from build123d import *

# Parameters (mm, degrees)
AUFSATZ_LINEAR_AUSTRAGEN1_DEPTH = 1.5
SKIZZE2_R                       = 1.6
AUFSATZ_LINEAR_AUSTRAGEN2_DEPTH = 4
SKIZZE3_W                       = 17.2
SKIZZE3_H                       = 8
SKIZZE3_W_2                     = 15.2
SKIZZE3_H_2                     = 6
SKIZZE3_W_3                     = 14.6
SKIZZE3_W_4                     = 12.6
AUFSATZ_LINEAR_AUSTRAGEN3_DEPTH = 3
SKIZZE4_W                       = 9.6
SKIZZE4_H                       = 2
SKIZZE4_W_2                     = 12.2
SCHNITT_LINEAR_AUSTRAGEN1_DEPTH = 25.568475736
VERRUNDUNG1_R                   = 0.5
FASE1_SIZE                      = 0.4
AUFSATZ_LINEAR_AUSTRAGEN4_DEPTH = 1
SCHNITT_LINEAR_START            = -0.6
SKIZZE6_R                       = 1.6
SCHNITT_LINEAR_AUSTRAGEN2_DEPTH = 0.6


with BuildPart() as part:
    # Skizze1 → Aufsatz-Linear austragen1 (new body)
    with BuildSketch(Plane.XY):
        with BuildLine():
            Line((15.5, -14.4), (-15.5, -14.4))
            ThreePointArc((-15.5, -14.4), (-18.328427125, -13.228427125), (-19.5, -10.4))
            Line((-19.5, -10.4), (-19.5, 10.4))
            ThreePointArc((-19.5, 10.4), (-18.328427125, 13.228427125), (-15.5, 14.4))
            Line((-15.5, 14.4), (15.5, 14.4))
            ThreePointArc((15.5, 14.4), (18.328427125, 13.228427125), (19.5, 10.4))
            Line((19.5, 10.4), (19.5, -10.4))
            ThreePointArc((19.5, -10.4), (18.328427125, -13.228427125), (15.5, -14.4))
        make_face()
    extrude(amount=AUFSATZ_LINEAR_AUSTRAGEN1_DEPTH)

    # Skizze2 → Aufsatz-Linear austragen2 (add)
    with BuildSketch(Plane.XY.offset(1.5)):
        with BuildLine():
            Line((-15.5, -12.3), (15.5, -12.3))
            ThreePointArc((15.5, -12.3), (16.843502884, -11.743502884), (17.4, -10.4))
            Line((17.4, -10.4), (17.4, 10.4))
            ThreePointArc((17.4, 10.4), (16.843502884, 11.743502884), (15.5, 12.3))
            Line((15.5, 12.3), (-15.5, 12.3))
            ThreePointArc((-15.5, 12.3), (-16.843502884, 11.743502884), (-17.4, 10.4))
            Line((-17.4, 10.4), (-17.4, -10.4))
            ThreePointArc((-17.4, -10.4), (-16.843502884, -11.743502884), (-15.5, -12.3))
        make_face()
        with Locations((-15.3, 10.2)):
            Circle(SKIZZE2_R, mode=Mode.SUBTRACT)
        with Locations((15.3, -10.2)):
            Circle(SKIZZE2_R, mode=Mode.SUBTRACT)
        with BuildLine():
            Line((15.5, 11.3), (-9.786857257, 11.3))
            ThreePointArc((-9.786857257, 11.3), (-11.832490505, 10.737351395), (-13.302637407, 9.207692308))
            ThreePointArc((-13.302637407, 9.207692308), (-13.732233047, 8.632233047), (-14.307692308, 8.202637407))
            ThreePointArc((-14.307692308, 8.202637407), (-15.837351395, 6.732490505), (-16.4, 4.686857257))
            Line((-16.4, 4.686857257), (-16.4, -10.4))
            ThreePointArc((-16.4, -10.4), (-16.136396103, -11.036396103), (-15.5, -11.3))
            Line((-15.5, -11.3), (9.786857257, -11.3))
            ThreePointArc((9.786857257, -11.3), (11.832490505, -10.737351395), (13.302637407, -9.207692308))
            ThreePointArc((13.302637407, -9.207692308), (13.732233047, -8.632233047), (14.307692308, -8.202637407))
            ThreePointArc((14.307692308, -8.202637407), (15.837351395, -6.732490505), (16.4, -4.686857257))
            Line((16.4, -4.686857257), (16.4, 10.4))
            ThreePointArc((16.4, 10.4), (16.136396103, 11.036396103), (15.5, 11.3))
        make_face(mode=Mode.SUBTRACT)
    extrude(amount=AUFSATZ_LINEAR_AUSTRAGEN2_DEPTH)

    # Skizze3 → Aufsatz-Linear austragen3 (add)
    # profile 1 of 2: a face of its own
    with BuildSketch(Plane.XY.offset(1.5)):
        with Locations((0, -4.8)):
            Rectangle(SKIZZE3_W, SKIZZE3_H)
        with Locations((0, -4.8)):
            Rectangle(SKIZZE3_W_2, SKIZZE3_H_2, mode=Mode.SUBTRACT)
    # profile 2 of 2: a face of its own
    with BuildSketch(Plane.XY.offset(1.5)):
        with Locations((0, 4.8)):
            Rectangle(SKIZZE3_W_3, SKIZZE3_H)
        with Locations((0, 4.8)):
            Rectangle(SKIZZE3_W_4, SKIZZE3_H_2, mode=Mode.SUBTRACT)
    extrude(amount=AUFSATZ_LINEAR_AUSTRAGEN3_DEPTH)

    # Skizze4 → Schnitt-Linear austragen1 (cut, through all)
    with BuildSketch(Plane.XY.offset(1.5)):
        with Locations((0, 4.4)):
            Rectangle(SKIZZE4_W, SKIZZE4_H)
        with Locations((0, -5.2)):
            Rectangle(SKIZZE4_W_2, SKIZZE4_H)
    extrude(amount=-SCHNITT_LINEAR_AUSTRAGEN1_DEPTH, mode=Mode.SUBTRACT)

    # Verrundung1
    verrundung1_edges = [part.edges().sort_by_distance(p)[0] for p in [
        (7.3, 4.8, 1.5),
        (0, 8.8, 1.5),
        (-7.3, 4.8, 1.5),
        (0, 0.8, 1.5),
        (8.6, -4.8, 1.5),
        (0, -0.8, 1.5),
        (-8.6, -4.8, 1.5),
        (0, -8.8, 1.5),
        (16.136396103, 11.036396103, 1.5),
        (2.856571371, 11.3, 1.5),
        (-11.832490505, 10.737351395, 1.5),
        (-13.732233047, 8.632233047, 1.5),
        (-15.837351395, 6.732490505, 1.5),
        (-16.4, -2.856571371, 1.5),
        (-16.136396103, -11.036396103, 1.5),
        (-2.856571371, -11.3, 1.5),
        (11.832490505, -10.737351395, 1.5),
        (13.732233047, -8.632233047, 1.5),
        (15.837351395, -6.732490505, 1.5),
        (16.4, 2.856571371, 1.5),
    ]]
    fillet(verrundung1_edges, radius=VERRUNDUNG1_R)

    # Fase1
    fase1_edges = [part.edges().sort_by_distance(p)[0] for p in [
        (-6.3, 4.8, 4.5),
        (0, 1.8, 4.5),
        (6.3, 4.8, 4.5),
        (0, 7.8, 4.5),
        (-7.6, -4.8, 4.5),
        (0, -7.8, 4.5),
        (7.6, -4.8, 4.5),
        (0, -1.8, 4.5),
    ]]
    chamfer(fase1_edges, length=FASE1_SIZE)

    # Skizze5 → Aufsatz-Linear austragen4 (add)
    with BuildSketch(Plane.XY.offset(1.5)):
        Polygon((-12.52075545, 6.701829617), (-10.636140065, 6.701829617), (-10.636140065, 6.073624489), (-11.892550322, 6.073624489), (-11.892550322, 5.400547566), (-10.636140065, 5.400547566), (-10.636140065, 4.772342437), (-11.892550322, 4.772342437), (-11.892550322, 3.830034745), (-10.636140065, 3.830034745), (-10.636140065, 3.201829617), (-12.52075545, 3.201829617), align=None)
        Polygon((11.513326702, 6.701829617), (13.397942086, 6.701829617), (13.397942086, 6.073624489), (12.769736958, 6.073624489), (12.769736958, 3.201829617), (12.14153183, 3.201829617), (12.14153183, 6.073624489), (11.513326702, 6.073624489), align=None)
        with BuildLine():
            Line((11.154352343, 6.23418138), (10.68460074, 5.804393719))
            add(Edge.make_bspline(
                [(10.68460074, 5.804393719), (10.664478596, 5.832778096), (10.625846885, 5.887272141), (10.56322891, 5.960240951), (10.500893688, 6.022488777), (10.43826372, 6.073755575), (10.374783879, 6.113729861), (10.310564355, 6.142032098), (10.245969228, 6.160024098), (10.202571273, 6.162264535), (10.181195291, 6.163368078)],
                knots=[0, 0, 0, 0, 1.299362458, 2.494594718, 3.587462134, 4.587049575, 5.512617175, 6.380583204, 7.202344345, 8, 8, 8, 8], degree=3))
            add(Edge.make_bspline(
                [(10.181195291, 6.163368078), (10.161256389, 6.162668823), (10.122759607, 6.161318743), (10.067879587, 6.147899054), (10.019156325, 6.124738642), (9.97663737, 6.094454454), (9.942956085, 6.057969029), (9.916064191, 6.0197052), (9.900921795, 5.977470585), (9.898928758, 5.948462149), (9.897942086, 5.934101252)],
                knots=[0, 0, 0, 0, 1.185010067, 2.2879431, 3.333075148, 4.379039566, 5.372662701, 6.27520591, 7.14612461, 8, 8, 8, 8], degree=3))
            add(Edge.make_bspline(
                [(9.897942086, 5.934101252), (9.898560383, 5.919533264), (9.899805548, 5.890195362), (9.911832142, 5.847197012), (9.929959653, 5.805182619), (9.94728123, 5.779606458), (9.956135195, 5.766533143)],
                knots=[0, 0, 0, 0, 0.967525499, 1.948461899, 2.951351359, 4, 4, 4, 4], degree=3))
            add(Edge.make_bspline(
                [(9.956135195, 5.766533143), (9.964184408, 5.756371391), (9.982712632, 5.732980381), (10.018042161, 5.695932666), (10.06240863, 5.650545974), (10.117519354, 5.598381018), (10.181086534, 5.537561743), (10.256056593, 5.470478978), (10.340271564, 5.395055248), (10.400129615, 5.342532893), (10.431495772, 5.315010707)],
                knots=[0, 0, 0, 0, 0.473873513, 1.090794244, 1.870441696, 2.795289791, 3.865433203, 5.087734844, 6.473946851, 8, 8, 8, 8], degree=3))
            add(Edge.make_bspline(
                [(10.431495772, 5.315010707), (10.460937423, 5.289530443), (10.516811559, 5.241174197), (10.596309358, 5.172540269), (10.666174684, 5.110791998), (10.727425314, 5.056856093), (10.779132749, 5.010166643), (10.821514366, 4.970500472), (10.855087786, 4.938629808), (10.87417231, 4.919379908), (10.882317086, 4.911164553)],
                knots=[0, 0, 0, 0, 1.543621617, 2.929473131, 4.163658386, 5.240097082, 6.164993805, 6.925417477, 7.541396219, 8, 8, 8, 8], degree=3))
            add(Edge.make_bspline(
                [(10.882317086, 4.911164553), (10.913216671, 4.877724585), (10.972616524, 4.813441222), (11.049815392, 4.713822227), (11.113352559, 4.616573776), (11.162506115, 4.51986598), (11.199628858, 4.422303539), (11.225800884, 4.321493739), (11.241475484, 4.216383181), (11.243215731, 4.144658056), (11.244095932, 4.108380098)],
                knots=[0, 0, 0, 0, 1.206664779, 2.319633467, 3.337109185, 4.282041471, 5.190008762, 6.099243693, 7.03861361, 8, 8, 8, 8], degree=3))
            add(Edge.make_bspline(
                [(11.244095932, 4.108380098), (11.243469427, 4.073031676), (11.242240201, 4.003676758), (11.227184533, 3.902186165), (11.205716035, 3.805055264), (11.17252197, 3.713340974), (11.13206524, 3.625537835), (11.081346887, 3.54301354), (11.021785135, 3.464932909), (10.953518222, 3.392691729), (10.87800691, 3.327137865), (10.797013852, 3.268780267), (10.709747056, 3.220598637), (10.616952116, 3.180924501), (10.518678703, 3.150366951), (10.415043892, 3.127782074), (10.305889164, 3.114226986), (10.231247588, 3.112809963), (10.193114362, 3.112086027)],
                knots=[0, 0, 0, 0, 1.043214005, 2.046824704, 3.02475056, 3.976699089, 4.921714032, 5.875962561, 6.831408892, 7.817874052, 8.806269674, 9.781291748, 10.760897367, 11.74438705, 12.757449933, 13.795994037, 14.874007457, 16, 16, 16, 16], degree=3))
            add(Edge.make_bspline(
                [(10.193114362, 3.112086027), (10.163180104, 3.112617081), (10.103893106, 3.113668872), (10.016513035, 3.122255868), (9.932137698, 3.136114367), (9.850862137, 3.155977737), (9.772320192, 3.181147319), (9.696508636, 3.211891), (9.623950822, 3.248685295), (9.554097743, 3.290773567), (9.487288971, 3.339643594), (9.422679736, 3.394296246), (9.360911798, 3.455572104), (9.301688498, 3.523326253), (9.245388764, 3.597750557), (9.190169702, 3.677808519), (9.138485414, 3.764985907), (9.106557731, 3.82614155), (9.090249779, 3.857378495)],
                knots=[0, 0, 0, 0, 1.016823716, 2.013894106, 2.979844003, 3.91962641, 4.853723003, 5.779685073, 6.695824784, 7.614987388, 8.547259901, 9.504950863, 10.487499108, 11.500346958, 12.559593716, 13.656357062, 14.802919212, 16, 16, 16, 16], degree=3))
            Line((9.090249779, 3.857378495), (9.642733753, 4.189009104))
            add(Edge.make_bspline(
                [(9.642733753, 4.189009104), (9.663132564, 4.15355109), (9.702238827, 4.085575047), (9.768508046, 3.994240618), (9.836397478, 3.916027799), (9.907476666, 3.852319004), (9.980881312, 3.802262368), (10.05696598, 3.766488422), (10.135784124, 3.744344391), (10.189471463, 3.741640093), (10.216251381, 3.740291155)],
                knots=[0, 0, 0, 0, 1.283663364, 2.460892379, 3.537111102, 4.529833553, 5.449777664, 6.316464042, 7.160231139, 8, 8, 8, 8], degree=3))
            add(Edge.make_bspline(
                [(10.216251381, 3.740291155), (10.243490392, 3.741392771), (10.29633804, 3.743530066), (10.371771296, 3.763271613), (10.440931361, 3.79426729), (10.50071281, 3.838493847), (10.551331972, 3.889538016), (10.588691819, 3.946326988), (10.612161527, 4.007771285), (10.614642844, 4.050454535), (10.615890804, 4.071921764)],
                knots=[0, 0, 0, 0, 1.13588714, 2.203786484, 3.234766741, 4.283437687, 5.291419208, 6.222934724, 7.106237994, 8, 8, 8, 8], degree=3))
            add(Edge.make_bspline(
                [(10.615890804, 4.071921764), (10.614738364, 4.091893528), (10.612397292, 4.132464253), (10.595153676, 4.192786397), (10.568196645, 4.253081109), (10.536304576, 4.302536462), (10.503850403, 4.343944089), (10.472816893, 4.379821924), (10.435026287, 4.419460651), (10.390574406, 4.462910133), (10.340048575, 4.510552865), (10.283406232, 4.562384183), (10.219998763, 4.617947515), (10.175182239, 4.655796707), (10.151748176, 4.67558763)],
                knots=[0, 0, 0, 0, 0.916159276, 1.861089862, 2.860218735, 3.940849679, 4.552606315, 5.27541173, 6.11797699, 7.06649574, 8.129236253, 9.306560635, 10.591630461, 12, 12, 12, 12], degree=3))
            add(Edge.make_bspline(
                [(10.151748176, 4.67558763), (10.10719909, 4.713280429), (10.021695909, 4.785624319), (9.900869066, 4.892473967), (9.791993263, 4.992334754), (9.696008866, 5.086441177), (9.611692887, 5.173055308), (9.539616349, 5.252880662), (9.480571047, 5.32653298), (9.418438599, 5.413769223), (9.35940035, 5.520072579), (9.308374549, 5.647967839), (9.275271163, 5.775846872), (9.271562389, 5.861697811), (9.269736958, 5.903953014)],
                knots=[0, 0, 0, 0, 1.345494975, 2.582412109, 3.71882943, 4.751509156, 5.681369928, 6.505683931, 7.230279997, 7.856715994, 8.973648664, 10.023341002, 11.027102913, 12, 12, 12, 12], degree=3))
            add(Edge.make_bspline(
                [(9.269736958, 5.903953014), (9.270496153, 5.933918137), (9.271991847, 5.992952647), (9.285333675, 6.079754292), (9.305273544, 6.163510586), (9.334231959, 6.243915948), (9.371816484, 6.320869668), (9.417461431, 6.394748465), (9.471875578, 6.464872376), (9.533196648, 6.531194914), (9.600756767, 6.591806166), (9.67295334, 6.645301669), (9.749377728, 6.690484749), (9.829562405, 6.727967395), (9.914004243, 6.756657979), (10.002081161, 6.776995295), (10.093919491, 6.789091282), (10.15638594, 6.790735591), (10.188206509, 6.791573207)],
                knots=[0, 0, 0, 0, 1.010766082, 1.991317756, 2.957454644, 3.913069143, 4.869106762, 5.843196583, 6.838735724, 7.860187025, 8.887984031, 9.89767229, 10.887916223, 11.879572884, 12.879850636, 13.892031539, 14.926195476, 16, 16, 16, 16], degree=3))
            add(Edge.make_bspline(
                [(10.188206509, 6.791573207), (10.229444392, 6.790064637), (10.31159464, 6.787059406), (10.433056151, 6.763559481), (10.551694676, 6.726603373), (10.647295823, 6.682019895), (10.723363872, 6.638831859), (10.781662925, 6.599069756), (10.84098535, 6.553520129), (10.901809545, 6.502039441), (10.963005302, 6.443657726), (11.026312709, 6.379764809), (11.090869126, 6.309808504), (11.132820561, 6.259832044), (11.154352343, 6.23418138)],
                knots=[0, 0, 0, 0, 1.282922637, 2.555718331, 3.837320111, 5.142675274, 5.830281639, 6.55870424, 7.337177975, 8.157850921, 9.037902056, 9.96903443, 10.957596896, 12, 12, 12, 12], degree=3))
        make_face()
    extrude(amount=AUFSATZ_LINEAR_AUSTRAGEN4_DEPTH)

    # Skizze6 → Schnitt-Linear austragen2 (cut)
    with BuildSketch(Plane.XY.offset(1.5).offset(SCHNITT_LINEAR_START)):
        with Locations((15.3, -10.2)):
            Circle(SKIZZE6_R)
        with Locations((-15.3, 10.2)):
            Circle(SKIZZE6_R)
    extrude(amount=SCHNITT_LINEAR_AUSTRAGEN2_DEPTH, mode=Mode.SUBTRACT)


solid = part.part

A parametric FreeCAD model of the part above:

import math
import FreeCAD as App
import Part
import Sketcher


def edges_at(feature, points):
    """Names of the edges that pass closest to the given points."""
    edges = feature.Shape.Edges
    near = lambda p: min(range(len(edges)), key=lambda i: edges[i].distToShape(Part.Vertex(*p))[0])
    return sorted({f"Edge{near(p) + 1}" for p in points})


def add_polygon(sketch, points):
    """Adds a closed chain of lines whose ends are joined by coincident constraints."""
    first, n = sketch.GeometryCount, len(points)
    for a, b in zip(points, points[1:] + points[:1]):
        sketch.addGeometry(Part.LineSegment(App.Vector(*a, 0), App.Vector(*b, 0)), False)
    for i in range(n):
        sketch.addConstraint(Sketcher.Constraint("Coincident", first + i, 2, first + (i + 1) % n, 1))

doc = App.newDocument("Part")
body = doc.addObject("PartDesign::Body", "Body")

# Sketch on XY plane
sketch1 = body.newObject("Sketcher::SketchObject", "Sketch")
sketch1.AttachmentSupport = (doc.getObject("XY_Plane"), [""])
sketch1.MapMode = "FlatFace"
sketch1.addGeometry([
    Part.LineSegment(App.Vector(-15.5, -14.4, 0), App.Vector(15.5, -14.4, 0)),  # 0
    Part.ArcOfCircle(Part.Circle(App.Vector(15.5, -10.4, 0), App.Vector(0, 0, 1), 4), math.radians(-90), math.radians(0)),  # 1
    Part.LineSegment(App.Vector(19.5, -10.4, 0), App.Vector(19.5, 10.4, 0)),  # 2
    Part.ArcOfCircle(Part.Circle(App.Vector(15.5, 10.4, 0), App.Vector(0, 0, 1), 4), math.radians(0), math.radians(90)),  # 3
    Part.LineSegment(App.Vector(15.5, 14.4, 0), App.Vector(-15.5, 14.4, 0)),  # 4
    Part.ArcOfCircle(Part.Circle(App.Vector(-15.5, 10.4, 0), App.Vector(0, 0, 1), 4), math.radians(90), math.radians(180)),  # 5
    Part.LineSegment(App.Vector(-19.5, 10.4, 0), App.Vector(-19.5, -10.4, 0)),  # 6
    Part.ArcOfCircle(Part.Circle(App.Vector(-15.5, -10.4, 0), App.Vector(0, 0, 1), 4), math.radians(180), math.radians(270)),  # 7
], False)
sketch1.addConstraint([
    Sketcher.Constraint("Tangent", 0, 2, 1, 1),
    Sketcher.Constraint("Tangent", 1, 2, 2, 1),
    Sketcher.Constraint("Tangent", 2, 2, 3, 1),
    Sketcher.Constraint("Tangent", 3, 2, 4, 1),
    Sketcher.Constraint("Tangent", 4, 2, 5, 1),
    Sketcher.Constraint("Tangent", 5, 2, 6, 1),
    Sketcher.Constraint("Tangent", 6, 2, 7, 1),
    Sketcher.Constraint("Tangent", 7, 2, 0, 1),
    Sketcher.Constraint("Horizontal", 0),
    Sketcher.Constraint("Vertical", 2),
    Sketcher.Constraint("Horizontal", 4),
    Sketcher.Constraint("Vertical", 6),
    Sketcher.Constraint("Equal", 1, 3),
    Sketcher.Constraint("Equal", 3, 5),
    Sketcher.Constraint("Equal", 5, 7),
    Sketcher.Constraint("Symmetric", 1, 3, 5, 3, -1, 1),
    Sketcher.Constraint("Radius", 1, 4.0),
    Sketcher.Constraint("DistanceX", 0, 1, 0, 2, 31.0),
    Sketcher.Constraint("DistanceY", 2, 1, 2, 2, 20.8),
])
pad1 = body.newObject("PartDesign::Pad", "Pad")
pad1.Profile = sketch1
pad1.Length = 1.5

# Sketch on XY plane
sketch2 = body.newObject("Sketcher::SketchObject", "Sketch001")
sketch2.AttachmentSupport = (doc.getObject("XY_Plane"), [""])
sketch2.MapMode = "FlatFace"
sketch2.AttachmentOffset = App.Placement(App.Vector(0, 0, 1.5), App.Rotation())
sketch2.addGeometry([
    Part.LineSegment(App.Vector(-15.5, -12.3, 0), App.Vector(15.5, -12.3, 0)),  # 0
    Part.ArcOfCircle(Part.Circle(App.Vector(15.5, -10.4, 0), App.Vector(0, 0, 1), 1.9), math.radians(-90), math.radians(0)),  # 1
    Part.LineSegment(App.Vector(17.4, -10.4, 0), App.Vector(17.4, 10.4, 0)),  # 2
    Part.ArcOfCircle(Part.Circle(App.Vector(15.5, 10.4, 0), App.Vector(0, 0, 1), 1.9), math.radians(0), math.radians(90)),  # 3
    Part.LineSegment(App.Vector(15.5, 12.3, 0), App.Vector(-15.5, 12.3, 0)),  # 4
    Part.ArcOfCircle(Part.Circle(App.Vector(-15.5, 10.4, 0), App.Vector(0, 0, 1), 1.9), math.radians(90), math.radians(180)),  # 5
    Part.LineSegment(App.Vector(-17.4, 10.4, 0), App.Vector(-17.4, -10.4, 0)),  # 6
    Part.ArcOfCircle(Part.Circle(App.Vector(-15.5, -10.4, 0), App.Vector(0, 0, 1), 1.9), math.radians(-180), math.radians(-90)),  # 7
    Part.Circle(App.Vector(15.3, -10.2, 0), App.Vector(0, 0, 1), 1.6),  # 8
    Part.Circle(App.Vector(-15.3, 10.2, 0), App.Vector(0, 0, 1), 1.6),  # 9
    Part.LineSegment(App.Vector(-9.8, 11.3, 0), App.Vector(15.5, 11.3, 0)),  # 10
    Part.ArcOfCircle(Part.Circle(App.Vector(15.5, 10.4, 0), App.Vector(0, 0, 1), 0.9), math.radians(0), math.radians(90)),  # 11
    Part.LineSegment(App.Vector(16.4, 10.4, 0), App.Vector(16.4, -4.7, 0)),  # 12
    Part.ArcOfCircle(Part.Circle(App.Vector(12.4, -4.7, 0), App.Vector(0, 0, 1), 4), math.radians(-62), math.radians(0)),  # 13
    Part.ArcOfCircle(Part.Circle(App.Vector(15.5, -10.4, 0), App.Vector(0, 0, 1), 2.5), math.radians(118), math.radians(152)),  # 14
    Part.ArcOfCircle(Part.Circle(App.Vector(9.8, -7.3, 0), App.Vector(0, 0, 1), 4), math.radians(-90), math.radians(-28)),  # 15
    Part.LineSegment(App.Vector(9.8, -11.3, 0), App.Vector(-15.5, -11.3, 0)),  # 16
    Part.ArcOfCircle(Part.Circle(App.Vector(-15.5, -10.4, 0), App.Vector(0, 0, 1), 0.9), math.radians(180), math.radians(270)),  # 17
    Part.LineSegment(App.Vector(-16.4, -10.4, 0), App.Vector(-16.4, 4.7, 0)),  # 18
    Part.ArcOfCircle(Part.Circle(App.Vector(-12.4, 4.7, 0), App.Vector(0, 0, 1), 4), math.radians(118), math.radians(180)),  # 19
    Part.ArcOfCircle(Part.Circle(App.Vector(-15.5, 10.4, 0), App.Vector(0, 0, 1), 2.5), math.radians(-62), math.radians(-28)),  # 20
    Part.ArcOfCircle(Part.Circle(App.Vector(-9.8, 7.3, 0), App.Vector(0, 0, 1), 4), math.radians(90), math.radians(152)),  # 21
], False)
sketch2.addConstraint([
    Sketcher.Constraint("Tangent", 0, 2, 1, 1),
    Sketcher.Constraint("Tangent", 1, 2, 2, 1),
    Sketcher.Constraint("Tangent", 2, 2, 3, 1),
    Sketcher.Constraint("Tangent", 3, 2, 4, 1),
    Sketcher.Constraint("Tangent", 4, 2, 5, 1),
    Sketcher.Constraint("Tangent", 5, 2, 6, 1),
    Sketcher.Constraint("Tangent", 6, 2, 7, 1),
    Sketcher.Constraint("Tangent", 7, 2, 0, 1),
    Sketcher.Constraint("Tangent", 10, 2, 11, 2),
    Sketcher.Constraint("Tangent", 11, 1, 12, 1),
    Sketcher.Constraint("Tangent", 12, 2, 13, 2),
    Sketcher.Constraint("Tangent", 13, 1, 14, 1),
    Sketcher.Constraint("Tangent", 14, 2, 15, 2),
    Sketcher.Constraint("Tangent", 15, 1, 16, 1),
    Sketcher.Constraint("Tangent", 16, 2, 17, 2),
    Sketcher.Constraint("Tangent", 17, 1, 18, 1),
    Sketcher.Constraint("Tangent", 18, 2, 19, 2),
    Sketcher.Constraint("Tangent", 19, 1, 20, 1),
    Sketcher.Constraint("Tangent", 20, 2, 21, 2),
    Sketcher.Constraint("Tangent", 21, 1, 10, 1),
    Sketcher.Constraint("Horizontal", 0),
    Sketcher.Constraint("Vertical", 2),
    Sketcher.Constraint("Horizontal", 4),
    Sketcher.Constraint("Vertical", 6),
    Sketcher.Constraint("Horizontal", 10),
    Sketcher.Constraint("Vertical", 12),
    Sketcher.Constraint("Horizontal", 16),
    Sketcher.Constraint("Vertical", 18),
    Sketcher.Constraint("Coincident", 11, 3, 3, 3),
    Sketcher.Constraint("Coincident", 14, 3, 1, 3),
    Sketcher.Constraint("Coincident", 17, 3, 7, 3),
    Sketcher.Constraint("Coincident", 20, 3, 5, 3),
    Sketcher.Constraint("Equal", 1, 3),
    Sketcher.Constraint("Equal", 3, 5),
    Sketcher.Constraint("Equal", 5, 7),
    Sketcher.Constraint("Equal", 8, 9),
    Sketcher.Constraint("Equal", 13, 15),
    Sketcher.Constraint("Equal", 11, 17),
    Sketcher.Constraint("Equal", 15, 19),
    Sketcher.Constraint("Equal", 14, 20),
    Sketcher.Constraint("Equal", 19, 21),
    Sketcher.Constraint("Symmetric", 1, 3, 5, 3, -1, 1),
    Sketcher.Constraint("Symmetric", 8, 3, 9, 3, -1, 1),
    Sketcher.Constraint("Radius", 13, 4.0),
    Sketcher.Constraint("Diameter", 8, 3.2),
    Sketcher.Constraint("Radius", 1, 1.9),
    Sketcher.Constraint("Radius", 11, 0.9),
    Sketcher.Constraint("Radius", 14, 2.5),
    Sketcher.Constraint("DistanceX", 0, 1, 0, 2, 31.0),
    Sketcher.Constraint("DistanceY", 2, 1, 2, 2, 20.8),
    Sketcher.Constraint("DistanceX", -1, 1, 8, 3, 15.3),
    Sketcher.Constraint("DistanceY", 8, 3, -1, 1, 10.2),
])
pad2 = body.newObject("PartDesign::Pad", "Pad001")
pad2.Profile = sketch2
pad2.Length = 4

# Sketch on XY plane
sketch3 = body.newObject("Sketcher::SketchObject", "Sketch002")
sketch3.AttachmentSupport = (doc.getObject("XY_Plane"), [""])
sketch3.MapMode = "FlatFace"
sketch3.AttachmentOffset = App.Placement(App.Vector(0, 0, 1.5), App.Rotation())
add_polygon(sketch3, [(-9, -1), (-9, -9), (9, -9), (9, -1)])  # lines 0-3
add_polygon(sketch3, [(8, -8), (-8, -8), (-8, -2), (8, -2)])  # lines 4-7
add_polygon(sketch3, [(-7, 9), (-7, 1), (7, 1), (7, 9)])  # lines 8-11
add_polygon(sketch3, [(6, 2), (-6, 2), (-6, 8), (6, 8)])  # lines 12-15
sketch3.addConstraint([
    Sketcher.Constraint("Vertical", 0),
    Sketcher.Constraint("Horizontal", 1),
    Sketcher.Constraint("Vertical", 2),
    Sketcher.Constraint("Horizontal", 3),
    Sketcher.Constraint("Horizontal", 4),
    Sketcher.Constraint("Vertical", 5),
    Sketcher.Constraint("Horizontal", 6),
    Sketcher.Constraint("Vertical", 7),
    Sketcher.Constraint("Vertical", 8),
    Sketcher.Constraint("Horizontal", 9),
    Sketcher.Constraint("Vertical", 10),
    Sketcher.Constraint("Horizontal", 11),
    Sketcher.Constraint("Horizontal", 12),
    Sketcher.Constraint("Vertical", 13),
    Sketcher.Constraint("Horizontal", 14),
    Sketcher.Constraint("Vertical", 15),
    Sketcher.Constraint("Equal", 2, 8),
    Sketcher.Constraint("Equal", 7, 13),
    Sketcher.Constraint("DistanceY", 0, 2, 0, 1, 8.0),
    Sketcher.Constraint("DistanceY", 5, 1, 5, 2, 6.0),
    Sketcher.Constraint("DistanceX", 1, 1, 1, 2, 17.2),
    Sketcher.Constraint("DistanceX", 4, 2, 4, 1, 15.2),
    Sketcher.Constraint("DistanceX", 9, 1, 9, 2, 14.6),
    Sketcher.Constraint("DistanceX", 12, 2, 12, 1, 12.6),
    Sketcher.Constraint("DistanceX", 0, 2, 4, 2, 1.0),
    Sketcher.Constraint("DistanceY", 0, 2, 4, 2, 1.0),
    Sketcher.Constraint("DistanceX", 8, 2, 12, 2, 1.0),
    Sketcher.Constraint("DistanceY", 8, 2, 12, 2, 1.0),
    Sketcher.Constraint("DistanceX", 0, 2, -1, 1, 8.6),
    Sketcher.Constraint("DistanceY", 0, 2, -1, 1, 8.8),
    Sketcher.Constraint("DistanceX", 8, 2, -1, 1, 7.3),
    Sketcher.Constraint("DistanceY", -1, 1, 8, 2, 0.8),
])
pad3 = body.newObject("PartDesign::Pad", "Pad002")
pad3.Profile = sketch3
pad3.Length = 3

# Sketch on XY plane
sketch4 = body.newObject("Sketcher::SketchObject", "Sketch003")
sketch4.AttachmentSupport = (doc.getObject("XY_Plane"), [""])
sketch4.MapMode = "FlatFace"
sketch4.AttachmentOffset = App.Placement(App.Vector(0, 0, 1.5), App.Rotation())
add_polygon(sketch4, [(-4.8, 5.4), (-4.8, 3.4), (4.8, 3.4), (4.8, 5.4)])  # lines 0-3
add_polygon(sketch4, [(-6.1, -4.2), (-6.1, -6.2), (6.1, -6.2), (6.1, -4.2)])  # lines 4-7
sketch4.addConstraint([
    Sketcher.Constraint("Vertical", 0),
    Sketcher.Constraint("Horizontal", 1),
    Sketcher.Constraint("Vertical", 2),
    Sketcher.Constraint("Horizontal", 3),
    Sketcher.Constraint("Vertical", 4),
    Sketcher.Constraint("Horizontal", 5),
    Sketcher.Constraint("Vertical", 6),
    Sketcher.Constraint("Horizontal", 7),
    Sketcher.Constraint("Equal", 2, 4),
    Sketcher.Constraint("DistanceY", 0, 2, 0, 1, 2.0),
    Sketcher.Constraint("DistanceX", 1, 1, 1, 2, 9.6),
    Sketcher.Constraint("DistanceX", 5, 1, 5, 2, 12.2),
    Sketcher.Constraint("DistanceX", 0, 2, -1, 1, 4.8),
    Sketcher.Constraint("DistanceY", -1, 1, 0, 2, 3.4),
    Sketcher.Constraint("DistanceX", 4, 2, -1, 1, 6.1),
    Sketcher.Constraint("DistanceY", 4, 2, -1, 1, 6.2),
])
pocket1 = body.newObject("PartDesign::Pocket", "Pocket")
pocket1.Profile = sketch4
pocket1.Type = "ThroughAll"
doc.recompute()

fillet = body.newObject("PartDesign::Fillet", "Fillet")
fillet.Base = (pocket1, edges_at(pocket1, [
    (7.3, 4.8, 1.5),
    (0, 8.8, 1.5),
    (-7.3, 4.8, 1.5),
    (0, 0.8, 1.5),
    (8.6, -4.8, 1.5),
    (0, -0.8, 1.5),
    (-8.6, -4.8, 1.5),
    (0, -8.8, 1.5),
    (16.136, 11.036, 1.5),
    (2.857, 11.3, 1.5),
    (-11.832, 10.737, 1.5),
    (-13.732, 8.632, 1.5),
    (-15.837, 6.732, 1.5),
    (-16.4, -2.857, 1.5),
    (-16.136, -11.036, 1.5),
    (-2.857, -11.3, 1.5),
    (11.832, -10.737, 1.5),
    (13.732, -8.632, 1.5),
    (15.837, -6.732, 1.5),
    (16.4, 2.857, 1.5),
]))
fillet.Radius = 0.5
doc.recompute()

chamfer = body.newObject("PartDesign::Chamfer", "Chamfer")
chamfer.Base = (fillet, edges_at(fillet, [
    (-6.3, 4.8, 4.5),
    (0, 1.8, 4.5),
    (6.3, 4.8, 4.5),
    (0, 7.8, 4.5),
    (-7.6, -4.8, 4.5),
    (0, -7.8, 4.5),
    (7.6, -4.8, 4.5),
    (0, -1.8, 4.5),
]))
chamfer.Size = 0.4

# Sketch on XY plane
sketch5 = body.newObject("Sketcher::SketchObject", "Sketch004")
sketch5.AttachmentSupport = (doc.getObject("XY_Plane"), [""])
sketch5.MapMode = "FlatFace"
sketch5.AttachmentOffset = App.Placement(App.Vector(0, 0, 1.5), App.Rotation())
add_polygon(sketch5, [(-10.63614, 6.70183), (-12.520755, 6.70183), (-12.520755, 3.20183), (-10.63614, 3.20183), (-10.63614, 3.830035), (-11.89255, 3.830035), (-11.89255, 4.772342), (-10.63614, 4.772342), (-10.63614, 5.400548), (-11.89255, 5.400548), (-11.89255, 6.073624), (-10.63614, 6.073624)])  # lines 0-11
add_polygon(sketch5, [(13.397942, 6.70183), (11.513327, 6.70183), (11.513327, 6.073624), (12.141532, 6.073624), (12.141532, 3.20183), (12.769737, 3.20183), (12.769737, 6.073624), (13.397942, 6.073624)])  # lines 12-19
sketch5.addGeometry(Part.LineSegment(App.Vector(10.684601, 5.804394, 0), App.Vector(11.154352, 6.234181, 0)), False)  # 20
sketch5.addGeometry(Part.BSplineCurve([App.Vector(10.188207, 6.791573, 0), App.Vector(10.229444, 6.790065, 0), App.Vector(10.311595, 6.787059, 0), App.Vector(10.433056, 6.763559, 0), App.Vector(10.551695, 6.726603, 0), App.Vector(10.647296, 6.68202, 0), App.Vector(10.723364, 6.638832, 0), App.Vector(10.781663, 6.59907, 0), App.Vector(10.840985, 6.55352, 0), App.Vector(10.90181, 6.502039, 0), App.Vector(10.963005, 6.443658, 0), App.Vector(11.026313, 6.379765, 0), App.Vector(11.090869, 6.309809, 0), App.Vector(11.132821, 6.259832, 0), App.Vector(11.154352, 6.234181, 0)], [4, 1, 1, 1, 1, 1, 1, 1, 1, 1, 1, 1, 4], [0, 1.282922637, 2.555718331, 3.837320111, 5.142675274, 5.830281639, 6.55870424, 7.337177975, 8.157850921, 9.037902056, 9.96903443, 10.957596896, 12], False, 3, [1, 1, 1, 1, 1, 1, 1, 1, 1, 1, 1, 1, 1, 1, 1], False), False)  # 21
sketch5.addGeometry(Part.BSplineCurve([App.Vector(9.269737, 5.903953, 0), App.Vector(9.270496, 5.933918, 0), App.Vector(9.271992, 5.992953, 0), App.Vector(9.285334, 6.079754, 0), App.Vector(9.305274, 6.163511, 0), App.Vector(9.334232, 6.243916, 0), App.Vector(9.371816, 6.32087, 0), App.Vector(9.417461, 6.394748, 0), App.Vector(9.471876, 6.464872, 0), App.Vector(9.533197, 6.531195, 0), App.Vector(9.600757, 6.591806, 0), App.Vector(9.672953, 6.645302, 0), App.Vector(9.749378, 6.690485, 0), App.Vector(9.829562, 6.727967, 0), App.Vector(9.914004, 6.756658, 0), App.Vector(10.002081, 6.776995, 0), App.Vector(10.093919, 6.789091, 0), App.Vector(10.156386, 6.790736, 0), App.Vector(10.188207, 6.791573, 0)], [4, 1, 1, 1, 1, 1, 1, 1, 1, 1, 1, 1, 1, 1, 1, 1, 4], [0, 1.010766082, 1.991317756, 2.957454644, 3.913069143, 4.869106762, 5.843196583, 6.838735724, 7.860187025, 8.887984031, 9.89767229, 10.887916223, 11.879572884, 12.879850636, 13.892031539, 14.926195476, 16], False, 3, [1, 1, 1, 1, 1, 1, 1, 1, 1, 1, 1, 1, 1, 1, 1, 1, 1, 1, 1], False), False)  # 22
sketch5.addGeometry(Part.BSplineCurve([App.Vector(10.151748, 4.675588, 0), App.Vector(10.107199, 4.71328, 0), App.Vector(10.021696, 4.785624, 0), App.Vector(9.900869, 4.892474, 0), App.Vector(9.791993, 4.992335, 0), App.Vector(9.696009, 5.086441, 0), App.Vector(9.611693, 5.173055, 0), App.Vector(9.539616, 5.252881, 0), App.Vector(9.480571, 5.326533, 0), App.Vector(9.418439, 5.413769, 0), App.Vector(9.3594, 5.520073, 0), App.Vector(9.308375, 5.647968, 0), App.Vector(9.275271, 5.775847, 0), App.Vector(9.271562, 5.861698, 0), App.Vector(9.269737, 5.903953, 0)], [4, 1, 1, 1, 1, 1, 1, 1, 1, 1, 1, 1, 4], [0, 1.345494975, 2.582412109, 3.71882943, 4.751509156, 5.681369928, 6.505683931, 7.230279997, 7.856715994, 8.973648664, 10.023341002, 11.027102913, 12], False, 3, [1, 1, 1, 1, 1, 1, 1, 1, 1, 1, 1, 1, 1, 1, 1], False), False)  # 23
sketch5.addGeometry(Part.BSplineCurve([App.Vector(10.615891, 4.071922, 0), App.Vector(10.614738, 4.091894, 0), App.Vector(10.612397, 4.132464, 0), App.Vector(10.595154, 4.192786, 0), App.Vector(10.568197, 4.253081, 0), App.Vector(10.536305, 4.302536, 0), App.Vector(10.50385, 4.343944, 0), App.Vector(10.472817, 4.379822, 0), App.Vector(10.435026, 4.419461, 0), App.Vector(10.390574, 4.46291, 0), App.Vector(10.340049, 4.510553, 0), App.Vector(10.283406, 4.562384, 0), App.Vector(10.219999, 4.617948, 0), App.Vector(10.175182, 4.655797, 0), App.Vector(10.151748, 4.675588, 0)], [4, 1, 1, 1, 1, 1, 1, 1, 1, 1, 1, 1, 4], [0, 0.916159276, 1.861089862, 2.860218735, 3.940849679, 4.552606315, 5.27541173, 6.11797699, 7.06649574, 8.129236253, 9.306560635, 10.591630461, 12], False, 3, [1, 1, 1, 1, 1, 1, 1, 1, 1, 1, 1, 1, 1, 1, 1], False), False)  # 24
sketch5.addGeometry(Part.BSplineCurve([App.Vector(10.216251, 3.740291, 0), App.Vector(10.24349, 3.741393, 0), App.Vector(10.296338, 3.74353, 0), App.Vector(10.371771, 3.763272, 0), App.Vector(10.440931, 3.794267, 0), App.Vector(10.500713, 3.838494, 0), App.Vector(10.551332, 3.889538, 0), App.Vector(10.588692, 3.946327, 0), App.Vector(10.612162, 4.007771, 0), App.Vector(10.614643, 4.050455, 0), App.Vector(10.615891, 4.071922, 0)], [4, 1, 1, 1, 1, 1, 1, 1, 4], [0, 1.13588714, 2.203786484, 3.234766741, 4.283437687, 5.291419208, 6.222934724, 7.106237994, 8], False, 3, [1, 1, 1, 1, 1, 1, 1, 1, 1, 1, 1], False), False)  # 25
sketch5.addGeometry(Part.BSplineCurve([App.Vector(9.642734, 4.189009, 0), App.Vector(9.663133, 4.153551, 0), App.Vector(9.702239, 4.085575, 0), App.Vector(9.768508, 3.994241, 0), App.Vector(9.836397, 3.916028, 0), App.Vector(9.907477, 3.852319, 0), App.Vector(9.980881, 3.802262, 0), App.Vector(10.056966, 3.766488, 0), App.Vector(10.135784, 3.744344, 0), App.Vector(10.189471, 3.74164, 0), App.Vector(10.216251, 3.740291, 0)], [4, 1, 1, 1, 1, 1, 1, 1, 4], [0, 1.283663364, 2.460892379, 3.537111102, 4.529833553, 5.449777664, 6.316464042, 7.160231139, 8], False, 3, [1, 1, 1, 1, 1, 1, 1, 1, 1, 1, 1], False), False)  # 26
sketch5.addGeometry(Part.LineSegment(App.Vector(9.642734, 4.189009, 0), App.Vector(9.09025, 3.857378, 0)), False)  # 27
sketch5.addGeometry(Part.BSplineCurve([App.Vector(10.193114, 3.112086, 0), App.Vector(10.16318, 3.112617, 0), App.Vector(10.103893, 3.113669, 0), App.Vector(10.016513, 3.122256, 0), App.Vector(9.932138, 3.136114, 0), App.Vector(9.850862, 3.155978, 0), App.Vector(9.77232, 3.181147, 0), App.Vector(9.696509, 3.211891, 0), App.Vector(9.623951, 3.248685, 0), App.Vector(9.554098, 3.290774, 0), App.Vector(9.487289, 3.339644, 0), App.Vector(9.42268, 3.394296, 0), App.Vector(9.360912, 3.455572, 0), App.Vector(9.301688, 3.523326, 0), App.Vector(9.245389, 3.597751, 0), App.Vector(9.19017, 3.677809, 0), App.Vector(9.138485, 3.764986, 0), App.Vector(9.106558, 3.826142, 0), App.Vector(9.09025, 3.857378, 0)], [4, 1, 1, 1, 1, 1, 1, 1, 1, 1, 1, 1, 1, 1, 1, 1, 4], [0, 1.016823716, 2.013894106, 2.979844003, 3.91962641, 4.853723003, 5.779685073, 6.695824784, 7.614987388, 8.547259901, 9.504950863, 10.487499108, 11.500346958, 12.559593716, 13.656357062, 14.802919212, 16], False, 3, [1, 1, 1, 1, 1, 1, 1, 1, 1, 1, 1, 1, 1, 1, 1, 1, 1, 1, 1], False), False)  # 28
sketch5.addGeometry(Part.BSplineCurve([App.Vector(11.244096, 4.10838, 0), App.Vector(11.243469, 4.073032, 0), App.Vector(11.24224, 4.003677, 0), App.Vector(11.227185, 3.902186, 0), App.Vector(11.205716, 3.805055, 0), App.Vector(11.172522, 3.713341, 0), App.Vector(11.132065, 3.625538, 0), App.Vector(11.081347, 3.543014, 0), App.Vector(11.021785, 3.464933, 0), App.Vector(10.953518, 3.392692, 0), App.Vector(10.878007, 3.327138, 0), App.Vector(10.797014, 3.26878, 0), App.Vector(10.709747, 3.220599, 0), App.Vector(10.616952, 3.180925, 0), App.Vector(10.518679, 3.150367, 0), App.Vector(10.415044, 3.127782, 0), App.Vector(10.305889, 3.114227, 0), App.Vector(10.231248, 3.11281, 0), App.Vector(10.193114, 3.112086, 0)], [4, 1, 1, 1, 1, 1, 1, 1, 1, 1, 1, 1, 1, 1, 1, 1, 4], [0, 1.043214005, 2.046824704, 3.02475056, 3.976699089, 4.921714032, 5.875962561, 6.831408892, 7.817874052, 8.806269674, 9.781291748, 10.760897367, 11.74438705, 12.757449933, 13.795994037, 14.874007457, 16], False, 3, [1, 1, 1, 1, 1, 1, 1, 1, 1, 1, 1, 1, 1, 1, 1, 1, 1, 1, 1], False), False)  # 29
sketch5.addGeometry(Part.BSplineCurve([App.Vector(10.882317, 4.911165, 0), App.Vector(10.913217, 4.877725, 0), App.Vector(10.972617, 4.813441, 0), App.Vector(11.049815, 4.713822, 0), App.Vector(11.113353, 4.616574, 0), App.Vector(11.162506, 4.519866, 0), App.Vector(11.199629, 4.422304, 0), App.Vector(11.225801, 4.321494, 0), App.Vector(11.241475, 4.216383, 0), App.Vector(11.243216, 4.144658, 0), App.Vector(11.244096, 4.10838, 0)], [4, 1, 1, 1, 1, 1, 1, 1, 4], [0, 1.206664779, 2.319633467, 3.337109185, 4.282041471, 5.190008762, 6.099243693, 7.03861361, 8], False, 3, [1, 1, 1, 1, 1, 1, 1, 1, 1, 1, 1], False), False)  # 30
sketch5.addGeometry(Part.BSplineCurve([App.Vector(10.431496, 5.315011, 0), App.Vector(10.460937, 5.28953, 0), App.Vector(10.516812, 5.241174, 0), App.Vector(10.596309, 5.17254, 0), App.Vector(10.666175, 5.110792, 0), App.Vector(10.727425, 5.056856, 0), App.Vector(10.779133, 5.010167, 0), App.Vector(10.821514, 4.9705, 0), App.Vector(10.855088, 4.93863, 0), App.Vector(10.874172, 4.91938, 0), App.Vector(10.882317, 4.911165, 0)], [4, 1, 1, 1, 1, 1, 1, 1, 4], [0, 1.543621617, 2.929473131, 4.163658386, 5.240097082, 6.164993805, 6.925417477, 7.541396219, 8], False, 3, [1, 1, 1, 1, 1, 1, 1, 1, 1, 1, 1], False), False)  # 31
sketch5.addGeometry(Part.BSplineCurve([App.Vector(9.956135, 5.766533, 0), App.Vector(9.964184, 5.756371, 0), App.Vector(9.982713, 5.73298, 0), App.Vector(10.018042, 5.695933, 0), App.Vector(10.062409, 5.650546, 0), App.Vector(10.117519, 5.598381, 0), App.Vector(10.181087, 5.537562, 0), App.Vector(10.256057, 5.470479, 0), App.Vector(10.340272, 5.395055, 0), App.Vector(10.40013, 5.342533, 0), App.Vector(10.431496, 5.315011, 0)], [4, 1, 1, 1, 1, 1, 1, 1, 4], [0, 0.473873513, 1.090794244, 1.870441696, 2.795289791, 3.865433203, 5.087734844, 6.473946851, 8], False, 3, [1, 1, 1, 1, 1, 1, 1, 1, 1, 1, 1], False), False)  # 32
sketch5.addGeometry(Part.BSplineCurve([App.Vector(9.897942, 5.934101, 0), App.Vector(9.89856, 5.919533, 0), App.Vector(9.899806, 5.890195, 0), App.Vector(9.911832, 5.847197, 0), App.Vector(9.92996, 5.805183, 0), App.Vector(9.947281, 5.779606, 0), App.Vector(9.956135, 5.766533, 0)], [4, 1, 1, 1, 4], [0, 0.967525499, 1.948461899, 2.951351359, 4], False, 3, [1, 1, 1, 1, 1, 1, 1], False), False)  # 33
sketch5.addGeometry(Part.BSplineCurve([App.Vector(10.181195, 6.163368, 0), App.Vector(10.161256, 6.162669, 0), App.Vector(10.12276, 6.161319, 0), App.Vector(10.06788, 6.147899, 0), App.Vector(10.019156, 6.124739, 0), App.Vector(9.976637, 6.094454, 0), App.Vector(9.942956, 6.057969, 0), App.Vector(9.916064, 6.019705, 0), App.Vector(9.900922, 5.977471, 0), App.Vector(9.898929, 5.948462, 0), App.Vector(9.897942, 5.934101, 0)], [4, 1, 1, 1, 1, 1, 1, 1, 4], [0, 1.185010067, 2.2879431, 3.333075148, 4.379039566, 5.372662701, 6.27520591, 7.14612461, 8], False, 3, [1, 1, 1, 1, 1, 1, 1, 1, 1, 1, 1], False), False)  # 34
sketch5.addGeometry(Part.BSplineCurve([App.Vector(10.684601, 5.804394, 0), App.Vector(10.664479, 5.832778, 0), App.Vector(10.625847, 5.887272, 0), App.Vector(10.563229, 5.960241, 0), App.Vector(10.500894, 6.022489, 0), App.Vector(10.438264, 6.073756, 0), App.Vector(10.374784, 6.11373, 0), App.Vector(10.310564, 6.142032, 0), App.Vector(10.245969, 6.160024, 0), App.Vector(10.202571, 6.162265, 0), App.Vector(10.181195, 6.163368, 0)], [4, 1, 1, 1, 1, 1, 1, 1, 4], [0, 1.299362458, 2.494594718, 3.587462134, 4.587049575, 5.512617175, 6.380583204, 7.202344345, 8], False, 3, [1, 1, 1, 1, 1, 1, 1, 1, 1, 1, 1], False), False)  # 35
sketch5.addConstraint([
    Sketcher.Constraint("Block", 21),
    Sketcher.Constraint("Block", 22),
    Sketcher.Constraint("Block", 23),
    Sketcher.Constraint("Block", 24),
    Sketcher.Constraint("Block", 25),
    Sketcher.Constraint("Block", 26),
    Sketcher.Constraint("Block", 28),
    Sketcher.Constraint("Block", 29),
    Sketcher.Constraint("Block", 30),
    Sketcher.Constraint("Block", 31),
    Sketcher.Constraint("Block", 32),
    Sketcher.Constraint("Block", 33),
    Sketcher.Constraint("Block", 34),
    Sketcher.Constraint("Block", 35),
    Sketcher.Constraint("Coincident", 20, 2, 21, 2),
    Sketcher.Constraint("Coincident", 26, 1, 27, 1),
    Sketcher.Constraint("Coincident", 27, 2, 28, 2),
    Sketcher.Constraint("Coincident", 35, 1, 20, 1),
    Sketcher.Constraint("Horizontal", 0),
    Sketcher.Constraint("Vertical", 1),
    Sketcher.Constraint("Horizontal", 2),
    Sketcher.Constraint("Vertical", 3),
    Sketcher.Constraint("Horizontal", 4),
    Sketcher.Constraint("Vertical", 5),
    Sketcher.Constraint("Horizontal", 6),
    Sketcher.Constraint("Vertical", 7),
    Sketcher.Constraint("Horizontal", 8),
    Sketcher.Constraint("Vertical", 9),
    Sketcher.Constraint("Horizontal", 10),
    Sketcher.Constraint("Vertical", 11),
    Sketcher.Constraint("Horizontal", 12),
    Sketcher.Constraint("Vertical", 13),
    Sketcher.Constraint("Horizontal", 14),
    Sketcher.Constraint("Vertical", 15),
    Sketcher.Constraint("Horizontal", 16),
    Sketcher.Constraint("Vertical", 17),
    Sketcher.Constraint("Horizontal", 18),
    Sketcher.Constraint("Vertical", 19),
    Sketcher.Constraint("Horizontal", 11, 2, 12, 2),
    Sketcher.Constraint("Horizontal", 10, 2, 13, 2),
    Sketcher.Constraint("Horizontal", 2, 2, 15, 2),
    Sketcher.Constraint("Horizontal", 14, 2, 17, 2),
    Sketcher.Constraint("Vertical", 3, 2, 6, 2),
    Sketcher.Constraint("Vertical", 5, 2, 8, 2),
    Sketcher.Constraint("Vertical", 7, 2, 10, 2),
    Sketcher.Constraint("Equal", 2, 12),
    Sketcher.Constraint("Equal", 14, 16),
    Sketcher.Constraint("Equal", 16, 18),
    Sketcher.Constraint("Equal", 18, 3),
    Sketcher.Constraint("Equal", 3, 7),
    Sketcher.Constraint("Equal", 7, 11),
    Sketcher.Constraint("DistanceY", 1, 2, 1, 1, 3.5),
    Sketcher.Constraint("DistanceX", 4, 2, 4, 1, 1.25641),
    Sketcher.Constraint("DistanceX", 0, 2, 0, 1, 1.884615),
    Sketcher.Constraint("DistanceY", 5, 1, 5, 2, 0.942308),
    Sketcher.Constraint("DistanceY", -1, 1, 0, 2, 6.70183),
    Sketcher.Constraint("DistanceX", 2, 2, -1, 1, 10.63614),
    Sketcher.Constraint("DistanceX", -1, 1, 14, 2, 12.141532),
])
pad4 = body.newObject("PartDesign::Pad", "Pad003")
pad4.Profile = sketch5
pad4.Length = 1

# Sketch on XY plane
sketch6 = body.newObject("Sketcher::SketchObject", "Sketch005")
sketch6.AttachmentSupport = (doc.getObject("XY_Plane"), [""])
sketch6.MapMode = "FlatFace"
sketch6.AttachmentOffset = App.Placement(App.Vector(0, 0, 0.9), App.Rotation())
sketch6.addGeometry([
    Part.Circle(App.Vector(15.3, -10.2, 0), App.Vector(0, 0, 1), 1.6),
    Part.Circle(App.Vector(-15.3, 10.2, 0), App.Vector(0, 0, 1), 1.6),
], False)
sketch6.addConstraint([
    Sketcher.Constraint("Equal", 0, 1),
    Sketcher.Constraint("Symmetric", 0, 3, 1, 3, -1, 1),
    Sketcher.Constraint("Diameter", 0, 3.2),
    Sketcher.Constraint("DistanceX", -1, 1, 0, 3, 15.3),
    Sketcher.Constraint("DistanceY", 0, 3, -1, 1, 10.2),
])
pocket2 = body.newObject("PartDesign::Pocket", "Pocket001")
pocket2.Profile = sketch6
pocket2.Length = 0.6
pocket2.Reversed = True

doc.recompute()
